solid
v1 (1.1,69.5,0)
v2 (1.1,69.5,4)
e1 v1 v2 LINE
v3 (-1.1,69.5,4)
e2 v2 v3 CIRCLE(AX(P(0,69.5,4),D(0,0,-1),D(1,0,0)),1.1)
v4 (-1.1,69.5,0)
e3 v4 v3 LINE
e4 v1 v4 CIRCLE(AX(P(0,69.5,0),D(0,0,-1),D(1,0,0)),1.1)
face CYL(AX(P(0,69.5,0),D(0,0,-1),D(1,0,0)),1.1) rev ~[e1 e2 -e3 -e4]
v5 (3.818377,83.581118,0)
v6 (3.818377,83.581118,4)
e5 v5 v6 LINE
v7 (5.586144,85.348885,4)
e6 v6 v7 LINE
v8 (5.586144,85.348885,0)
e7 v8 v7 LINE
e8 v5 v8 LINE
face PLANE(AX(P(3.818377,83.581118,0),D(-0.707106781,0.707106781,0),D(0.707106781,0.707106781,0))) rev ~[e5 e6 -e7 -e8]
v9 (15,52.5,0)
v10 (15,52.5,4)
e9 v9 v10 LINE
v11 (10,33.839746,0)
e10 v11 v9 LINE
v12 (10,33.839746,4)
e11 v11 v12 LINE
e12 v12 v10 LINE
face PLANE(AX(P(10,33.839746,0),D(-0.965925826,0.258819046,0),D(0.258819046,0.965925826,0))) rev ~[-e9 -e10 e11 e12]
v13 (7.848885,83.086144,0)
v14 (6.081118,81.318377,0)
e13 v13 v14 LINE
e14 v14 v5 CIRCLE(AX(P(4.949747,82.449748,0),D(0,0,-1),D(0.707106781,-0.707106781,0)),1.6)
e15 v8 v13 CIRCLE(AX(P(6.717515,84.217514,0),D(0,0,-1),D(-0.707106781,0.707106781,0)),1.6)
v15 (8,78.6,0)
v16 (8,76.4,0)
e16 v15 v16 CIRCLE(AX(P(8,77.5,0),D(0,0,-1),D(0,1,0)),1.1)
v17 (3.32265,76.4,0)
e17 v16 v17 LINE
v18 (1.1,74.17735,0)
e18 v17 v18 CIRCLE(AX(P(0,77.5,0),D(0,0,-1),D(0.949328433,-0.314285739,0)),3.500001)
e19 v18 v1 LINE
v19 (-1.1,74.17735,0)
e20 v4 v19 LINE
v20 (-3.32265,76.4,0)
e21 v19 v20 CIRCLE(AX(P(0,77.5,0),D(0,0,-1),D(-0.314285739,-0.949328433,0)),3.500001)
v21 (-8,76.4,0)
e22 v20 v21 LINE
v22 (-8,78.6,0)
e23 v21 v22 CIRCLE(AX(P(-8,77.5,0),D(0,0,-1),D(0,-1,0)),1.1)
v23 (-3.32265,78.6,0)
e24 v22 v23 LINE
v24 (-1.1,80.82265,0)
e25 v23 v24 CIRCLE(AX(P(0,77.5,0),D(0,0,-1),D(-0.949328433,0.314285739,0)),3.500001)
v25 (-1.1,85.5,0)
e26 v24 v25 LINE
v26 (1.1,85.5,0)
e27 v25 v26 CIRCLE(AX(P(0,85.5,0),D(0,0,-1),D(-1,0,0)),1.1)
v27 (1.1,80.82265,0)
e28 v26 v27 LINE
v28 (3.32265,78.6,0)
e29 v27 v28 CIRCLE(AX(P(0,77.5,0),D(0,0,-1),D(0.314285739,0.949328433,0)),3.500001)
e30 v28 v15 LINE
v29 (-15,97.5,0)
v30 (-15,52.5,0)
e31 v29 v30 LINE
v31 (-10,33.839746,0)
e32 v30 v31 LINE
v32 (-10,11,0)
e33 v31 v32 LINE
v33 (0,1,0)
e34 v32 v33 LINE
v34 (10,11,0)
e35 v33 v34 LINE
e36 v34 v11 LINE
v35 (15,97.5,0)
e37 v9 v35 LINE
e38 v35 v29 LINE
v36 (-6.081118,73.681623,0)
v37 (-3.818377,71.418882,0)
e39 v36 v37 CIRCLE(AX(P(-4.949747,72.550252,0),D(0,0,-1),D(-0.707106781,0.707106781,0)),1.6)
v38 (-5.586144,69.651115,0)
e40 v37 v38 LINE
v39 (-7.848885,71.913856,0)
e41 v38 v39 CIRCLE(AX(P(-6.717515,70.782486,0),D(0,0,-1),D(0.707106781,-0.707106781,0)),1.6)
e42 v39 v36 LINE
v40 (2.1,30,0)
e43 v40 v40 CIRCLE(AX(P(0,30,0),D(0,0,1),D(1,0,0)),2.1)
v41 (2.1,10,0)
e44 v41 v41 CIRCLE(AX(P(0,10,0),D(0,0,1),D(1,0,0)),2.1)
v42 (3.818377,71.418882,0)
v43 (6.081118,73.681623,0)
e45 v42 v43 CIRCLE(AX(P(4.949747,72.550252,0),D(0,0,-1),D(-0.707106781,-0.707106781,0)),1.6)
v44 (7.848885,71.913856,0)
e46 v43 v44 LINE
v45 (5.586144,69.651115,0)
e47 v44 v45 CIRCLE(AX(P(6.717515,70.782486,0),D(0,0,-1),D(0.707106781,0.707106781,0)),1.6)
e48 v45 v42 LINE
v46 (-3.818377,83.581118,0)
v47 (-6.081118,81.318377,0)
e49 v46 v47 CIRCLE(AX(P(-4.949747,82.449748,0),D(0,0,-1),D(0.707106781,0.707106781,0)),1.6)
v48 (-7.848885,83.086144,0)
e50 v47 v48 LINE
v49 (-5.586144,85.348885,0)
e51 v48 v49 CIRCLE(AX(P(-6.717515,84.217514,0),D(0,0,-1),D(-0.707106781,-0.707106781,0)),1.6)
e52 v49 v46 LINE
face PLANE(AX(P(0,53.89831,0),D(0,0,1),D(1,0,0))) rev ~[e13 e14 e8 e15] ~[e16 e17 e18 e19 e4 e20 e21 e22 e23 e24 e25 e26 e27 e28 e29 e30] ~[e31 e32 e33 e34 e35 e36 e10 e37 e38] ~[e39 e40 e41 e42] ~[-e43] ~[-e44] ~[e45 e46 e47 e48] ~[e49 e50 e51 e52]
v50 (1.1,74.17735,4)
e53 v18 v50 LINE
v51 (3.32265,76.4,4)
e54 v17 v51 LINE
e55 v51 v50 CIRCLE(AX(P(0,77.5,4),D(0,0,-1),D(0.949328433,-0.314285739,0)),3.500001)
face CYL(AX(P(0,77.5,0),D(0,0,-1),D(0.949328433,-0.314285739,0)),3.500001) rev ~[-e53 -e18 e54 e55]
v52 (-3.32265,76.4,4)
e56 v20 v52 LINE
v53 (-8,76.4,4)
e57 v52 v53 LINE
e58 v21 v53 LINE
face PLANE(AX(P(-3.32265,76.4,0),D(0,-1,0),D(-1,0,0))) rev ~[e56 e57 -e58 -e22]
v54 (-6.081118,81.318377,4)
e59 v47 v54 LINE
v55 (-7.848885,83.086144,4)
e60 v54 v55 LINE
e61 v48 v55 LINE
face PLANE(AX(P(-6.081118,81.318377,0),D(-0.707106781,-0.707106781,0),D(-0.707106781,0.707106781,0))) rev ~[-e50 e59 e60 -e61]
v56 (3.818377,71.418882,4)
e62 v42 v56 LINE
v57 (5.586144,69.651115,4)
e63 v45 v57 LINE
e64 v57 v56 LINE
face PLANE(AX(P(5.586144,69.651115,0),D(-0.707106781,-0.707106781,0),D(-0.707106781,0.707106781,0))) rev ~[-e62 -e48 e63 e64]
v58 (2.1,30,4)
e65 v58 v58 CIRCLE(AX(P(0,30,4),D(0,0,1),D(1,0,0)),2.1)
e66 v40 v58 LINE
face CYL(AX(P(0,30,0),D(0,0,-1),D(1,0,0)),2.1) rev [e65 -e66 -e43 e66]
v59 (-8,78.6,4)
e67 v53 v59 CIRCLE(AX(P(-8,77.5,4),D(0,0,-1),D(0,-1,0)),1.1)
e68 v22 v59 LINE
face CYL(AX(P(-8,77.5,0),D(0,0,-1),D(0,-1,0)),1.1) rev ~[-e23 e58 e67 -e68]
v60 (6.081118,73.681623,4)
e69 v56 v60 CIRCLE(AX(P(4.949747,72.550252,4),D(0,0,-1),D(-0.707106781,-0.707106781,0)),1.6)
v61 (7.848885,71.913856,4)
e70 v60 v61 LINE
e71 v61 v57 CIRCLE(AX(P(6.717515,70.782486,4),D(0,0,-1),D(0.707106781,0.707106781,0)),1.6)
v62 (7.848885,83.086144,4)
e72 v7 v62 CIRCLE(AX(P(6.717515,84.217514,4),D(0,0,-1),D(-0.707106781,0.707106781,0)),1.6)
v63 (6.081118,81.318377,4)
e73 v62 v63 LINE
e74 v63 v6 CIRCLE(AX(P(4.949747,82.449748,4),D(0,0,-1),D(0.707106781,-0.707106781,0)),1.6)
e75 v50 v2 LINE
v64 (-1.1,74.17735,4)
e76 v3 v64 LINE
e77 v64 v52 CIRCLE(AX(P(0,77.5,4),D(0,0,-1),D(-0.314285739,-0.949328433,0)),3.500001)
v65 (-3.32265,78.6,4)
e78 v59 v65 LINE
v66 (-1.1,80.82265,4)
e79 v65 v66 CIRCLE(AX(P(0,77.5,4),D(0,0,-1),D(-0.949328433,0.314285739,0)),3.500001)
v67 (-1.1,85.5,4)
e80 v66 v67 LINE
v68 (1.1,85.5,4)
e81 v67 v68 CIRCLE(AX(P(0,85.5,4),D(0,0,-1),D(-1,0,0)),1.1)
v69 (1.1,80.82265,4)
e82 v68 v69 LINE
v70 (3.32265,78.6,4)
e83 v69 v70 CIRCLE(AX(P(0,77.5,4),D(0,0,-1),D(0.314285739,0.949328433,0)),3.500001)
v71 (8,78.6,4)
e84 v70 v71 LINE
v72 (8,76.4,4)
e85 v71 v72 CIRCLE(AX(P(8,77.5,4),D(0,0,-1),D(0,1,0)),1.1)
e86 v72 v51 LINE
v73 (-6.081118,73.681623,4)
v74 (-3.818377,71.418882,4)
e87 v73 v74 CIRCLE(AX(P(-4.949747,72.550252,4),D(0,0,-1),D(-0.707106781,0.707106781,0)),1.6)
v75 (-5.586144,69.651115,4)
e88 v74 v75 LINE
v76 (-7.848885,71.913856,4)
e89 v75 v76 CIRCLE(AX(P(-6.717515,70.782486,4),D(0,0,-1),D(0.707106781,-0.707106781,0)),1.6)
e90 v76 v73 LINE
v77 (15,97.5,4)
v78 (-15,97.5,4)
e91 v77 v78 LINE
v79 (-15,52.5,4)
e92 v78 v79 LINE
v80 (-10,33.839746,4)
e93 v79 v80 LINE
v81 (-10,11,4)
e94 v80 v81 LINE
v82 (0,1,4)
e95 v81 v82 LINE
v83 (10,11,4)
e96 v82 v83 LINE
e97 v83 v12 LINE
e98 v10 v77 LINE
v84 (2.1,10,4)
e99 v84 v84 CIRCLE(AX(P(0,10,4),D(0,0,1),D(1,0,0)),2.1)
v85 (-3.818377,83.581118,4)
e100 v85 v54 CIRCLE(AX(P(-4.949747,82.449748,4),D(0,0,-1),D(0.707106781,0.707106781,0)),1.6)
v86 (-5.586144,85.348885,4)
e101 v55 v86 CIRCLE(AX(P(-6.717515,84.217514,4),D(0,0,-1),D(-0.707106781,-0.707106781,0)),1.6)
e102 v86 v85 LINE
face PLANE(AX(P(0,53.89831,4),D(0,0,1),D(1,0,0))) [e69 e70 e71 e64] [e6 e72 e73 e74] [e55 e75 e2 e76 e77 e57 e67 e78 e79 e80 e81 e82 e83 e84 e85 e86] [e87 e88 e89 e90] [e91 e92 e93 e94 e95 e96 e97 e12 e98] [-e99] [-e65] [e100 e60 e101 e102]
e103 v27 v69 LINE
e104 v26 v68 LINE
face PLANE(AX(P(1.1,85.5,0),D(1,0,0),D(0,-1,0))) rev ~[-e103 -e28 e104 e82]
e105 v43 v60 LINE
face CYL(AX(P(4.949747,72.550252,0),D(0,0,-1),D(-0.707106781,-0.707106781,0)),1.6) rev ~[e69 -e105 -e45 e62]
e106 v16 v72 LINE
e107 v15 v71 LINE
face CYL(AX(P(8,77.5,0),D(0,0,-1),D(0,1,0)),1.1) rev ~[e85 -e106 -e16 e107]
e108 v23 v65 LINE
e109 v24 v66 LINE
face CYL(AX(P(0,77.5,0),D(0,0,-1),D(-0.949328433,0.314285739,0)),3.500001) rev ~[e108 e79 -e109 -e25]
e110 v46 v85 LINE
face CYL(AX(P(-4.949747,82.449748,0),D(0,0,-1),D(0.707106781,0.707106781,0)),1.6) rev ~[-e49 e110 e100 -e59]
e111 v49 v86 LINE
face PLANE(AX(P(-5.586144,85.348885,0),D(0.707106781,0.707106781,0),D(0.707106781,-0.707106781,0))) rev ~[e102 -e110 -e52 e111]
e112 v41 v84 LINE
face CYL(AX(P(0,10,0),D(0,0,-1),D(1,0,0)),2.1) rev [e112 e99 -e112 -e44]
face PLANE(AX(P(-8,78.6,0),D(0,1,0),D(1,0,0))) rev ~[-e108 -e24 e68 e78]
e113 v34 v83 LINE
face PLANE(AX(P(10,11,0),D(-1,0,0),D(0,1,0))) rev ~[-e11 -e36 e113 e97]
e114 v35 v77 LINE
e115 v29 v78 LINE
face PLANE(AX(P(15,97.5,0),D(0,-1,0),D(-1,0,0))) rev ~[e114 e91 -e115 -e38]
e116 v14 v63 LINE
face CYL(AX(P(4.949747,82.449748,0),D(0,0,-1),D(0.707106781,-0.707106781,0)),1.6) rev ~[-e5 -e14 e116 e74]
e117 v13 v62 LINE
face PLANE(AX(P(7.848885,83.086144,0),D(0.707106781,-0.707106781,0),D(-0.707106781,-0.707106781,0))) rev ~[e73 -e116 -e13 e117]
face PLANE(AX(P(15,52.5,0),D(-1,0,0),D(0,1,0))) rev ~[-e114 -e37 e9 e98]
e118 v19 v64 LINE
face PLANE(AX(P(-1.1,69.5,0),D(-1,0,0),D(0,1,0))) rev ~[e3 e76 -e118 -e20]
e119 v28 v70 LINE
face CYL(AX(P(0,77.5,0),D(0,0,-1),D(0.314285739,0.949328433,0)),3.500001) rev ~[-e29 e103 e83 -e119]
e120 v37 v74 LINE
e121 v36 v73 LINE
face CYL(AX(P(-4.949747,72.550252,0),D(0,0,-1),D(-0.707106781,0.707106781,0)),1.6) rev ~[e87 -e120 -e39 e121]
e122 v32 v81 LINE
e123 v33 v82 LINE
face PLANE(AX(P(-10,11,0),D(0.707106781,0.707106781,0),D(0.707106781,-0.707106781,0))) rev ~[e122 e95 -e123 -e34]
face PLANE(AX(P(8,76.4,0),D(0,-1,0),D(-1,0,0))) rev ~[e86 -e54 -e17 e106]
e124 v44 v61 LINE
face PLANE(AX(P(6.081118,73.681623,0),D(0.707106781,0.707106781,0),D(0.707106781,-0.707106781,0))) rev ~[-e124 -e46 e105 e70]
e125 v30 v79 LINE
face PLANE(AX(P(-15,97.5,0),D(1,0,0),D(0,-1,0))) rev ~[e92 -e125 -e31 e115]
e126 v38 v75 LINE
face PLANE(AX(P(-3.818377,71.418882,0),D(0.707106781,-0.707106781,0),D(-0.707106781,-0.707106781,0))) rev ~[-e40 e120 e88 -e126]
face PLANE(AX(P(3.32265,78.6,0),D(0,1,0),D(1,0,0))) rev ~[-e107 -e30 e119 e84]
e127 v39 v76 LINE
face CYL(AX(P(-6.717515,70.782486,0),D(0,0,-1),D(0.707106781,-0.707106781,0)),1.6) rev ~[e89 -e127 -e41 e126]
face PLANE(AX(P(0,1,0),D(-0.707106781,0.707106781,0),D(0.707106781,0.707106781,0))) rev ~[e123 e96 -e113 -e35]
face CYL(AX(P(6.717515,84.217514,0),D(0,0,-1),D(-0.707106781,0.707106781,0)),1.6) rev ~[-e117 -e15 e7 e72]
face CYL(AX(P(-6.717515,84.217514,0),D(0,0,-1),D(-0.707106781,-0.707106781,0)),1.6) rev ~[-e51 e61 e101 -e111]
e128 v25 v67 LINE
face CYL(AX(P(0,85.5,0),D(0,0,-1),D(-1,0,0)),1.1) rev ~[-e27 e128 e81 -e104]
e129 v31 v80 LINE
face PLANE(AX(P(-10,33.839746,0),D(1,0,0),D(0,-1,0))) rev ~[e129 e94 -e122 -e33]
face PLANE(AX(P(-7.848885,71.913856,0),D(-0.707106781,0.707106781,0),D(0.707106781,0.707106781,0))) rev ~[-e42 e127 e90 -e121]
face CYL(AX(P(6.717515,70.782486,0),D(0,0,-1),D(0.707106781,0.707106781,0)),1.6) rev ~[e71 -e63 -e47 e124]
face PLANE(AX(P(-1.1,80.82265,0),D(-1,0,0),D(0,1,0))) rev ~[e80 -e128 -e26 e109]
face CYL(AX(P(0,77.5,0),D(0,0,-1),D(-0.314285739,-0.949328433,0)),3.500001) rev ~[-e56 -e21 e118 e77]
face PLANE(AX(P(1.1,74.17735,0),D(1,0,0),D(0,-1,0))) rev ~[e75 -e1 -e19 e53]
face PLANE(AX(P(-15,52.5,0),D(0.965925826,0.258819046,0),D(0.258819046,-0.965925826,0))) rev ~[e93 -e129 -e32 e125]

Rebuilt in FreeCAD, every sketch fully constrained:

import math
import FreeCAD as App
import Part
import Sketcher

V = App.Vector
Q = App.Units.Quantity


def add_polygon(sketch, points):
    """Adds a closed chain of lines whose ends are joined by coincident constraints."""
    first, n = sketch.GeometryCount, len(points)
    for a, b in zip(points, points[1:] + points[:1]):
        sketch.addGeometry(Part.LineSegment(App.Vector(*a, 0), App.Vector(*b, 0)), False)
    for i in range(n):
        sketch.addConstraint(Sketcher.Constraint("Coincident", first + i, 2, first + (i + 1) % n, 1))

doc = App.newDocument("Part")
body = doc.addObject("PartDesign::Body", "Body")

sketch1 = body.newObject("Sketcher::SketchObject", "Sketch")
sketch1.AttachmentSupport = (doc.getObject("XY_Plane"), [""])
sketch1.MapMode = "FlatFace"
add_polygon(sketch1, [(-15, 52.5), (-10, 33.8), (-10, 11), (0, 1), (10, 11), (10, 33.8), (15, 52.5), (15, 97.5), (-15, 97.5)])
sketch1.addGeometry(Part.Circle(V(0, 10, 0), V(0, 0, 1), 2.1), False)
sketch1.addGeometry(Part.Circle(V(0, 30, 0), V(0, 0, 1), 2.1), False)
sketch1.addGeometry(Part.LineSegment(V(-3.8, 71.4, 0), V(-5.6, 69.7, 0)), False)
sketch1.addGeometry(Part.ArcOfCircle(Part.Circle(V(-6.7, 70.8, 0), V(0, 0, 1), 1.6), math.radians(135), math.radians(315)), False)
sketch1.addGeometry(Part.LineSegment(V(-7.8, 71.9, 0), V(-6.1, 73.7, 0)), False)
sketch1.addGeometry(Part.ArcOfCircle(Part.Circle(V(-4.9, 72.6, 0), V(0, 0, 1), 1.6), math.radians(-45), math.radians(135)), False)
sketch1.addGeometry(Part.LineSegment(V(-6.1, 81.3, 0), V(-7.8, 83.1, 0)), False)
sketch1.addGeometry(Part.ArcOfCircle(Part.Circle(V(-6.7, 84.2, 0), V(0, 0, 1), 1.6), math.radians(45), math.radians(225)), False)
sketch1.addGeometry(Part.LineSegment(V(-5.6, 85.3, 0), V(-3.8, 83.6, 0)), False)
sketch1.addGeometry(Part.ArcOfCircle(Part.Circle(V(-4.9, 82.4, 0), V(0, 0, 1), 1.6), math.radians(-135), math.radians(45)), False)
sketch1.addGeometry(Part.LineSegment(V(-8, 78.6, 0), V(-3.3, 78.6, 0)), False)
sketch1.addGeometry(Part.ArcOfCircle(Part.Circle(V(0, 77.5, 0), V(0, 0, 1), 3.5), math.radians(108), math.radians(162)), False)
sketch1.addGeometry(Part.LineSegment(V(-1.1, 80.8, 0), V(-1.1, 85.5, 0)), False)
sketch1.addGeometry(Part.ArcOfCircle(Part.Circle(V(0, 85.5, 0), V(0, 0, 1), 1.1), math.radians(0), math.radians(180)), False)
sketch1.addGeometry(Part.LineSegment(V(1.1, 85.5, 0), V(1.1, 80.8, 0)), False)
sketch1.addGeometry(Part.ArcOfCircle(Part.Circle(V(0, 77.5, 0), V(0, 0, 1), 3.5), math.radians(18), math.radians(72)), False)
sketch1.addGeometry(Part.LineSegment(V(3.3, 78.6, 0), V(8, 78.6, 0)), False)
sketch1.addGeometry(Part.ArcOfCircle(Part.Circle(V(8, 77.5, 0), V(0, 0, 1), 1.1), math.radians(-90), math.radians(90)), False)
sketch1.addGeometry(Part.LineSegment(V(8, 76.4, 0), V(3.3, 76.4, 0)), False)
sketch1.addGeometry(Part.ArcOfCircle(Part.Circle(V(0, 77.5, 0), V(0, 0, 1), 3.5), math.radians(-72), math.radians(-18)), False)
sketch1.addGeometry(Part.LineSegment(V(1.1, 74.2, 0), V(1.1, 69.5, 0)), False)
sketch1.addGeometry(Part.ArcOfCircle(Part.Circle(V(0, 69.5, 0), V(0, 0, 1), 1.1), math.radians(180), math.radians(360)), False)
sketch1.addGeometry(Part.LineSegment(V(-1.1, 69.5, 0), V(-1.1, 74.2, 0)), False)
sketch1.addGeometry(Part.ArcOfCircle(Part.Circle(V(0, 77.5, 0), V(0, 0, 1), 3.5), math.radians(-162), math.radians(-108)), False)
sketch1.addGeometry(Part.LineSegment(V(-3.3, 76.4, 0), V(-8, 76.4, 0)), False)
sketch1.addGeometry(Part.ArcOfCircle(Part.Circle(V(-8, 77.5, 0), V(0, 0, 1), 1.1), math.radians(90), math.radians(270)), False)
sketch1.addGeometry(Part.LineSegment(V(6.1, 73.7, 0), V(7.8, 71.9, 0)), False)
sketch1.addGeometry(Part.ArcOfCircle(Part.Circle(V(6.7, 70.8, 0), V(0, 0, 1), 1.6), math.radians(-135), math.radians(45)), False)
sketch1.addGeometry(Part.LineSegment(V(5.6, 69.7, 0), V(3.8, 71.4, 0)), False)
sketch1.addGeometry(Part.ArcOfCircle(Part.Circle(V(4.9, 72.6, 0), V(0, 0, 1), 1.6), math.radians(45), math.radians(225)), False)
sketch1.addGeometry(Part.LineSegment(V(3.8, 83.6, 0), V(5.6, 85.3, 0)), False)
sketch1.addGeometry(Part.ArcOfCircle(Part.Circle(V(6.7, 84.2, 0), V(0, 0, 1), 1.6), math.radians(-45), math.radians(135)), False)
sketch1.addGeometry(Part.LineSegment(V(7.8, 83.1, 0), V(6.1, 81.3, 0)), False)
sketch1.addGeometry(Part.ArcOfCircle(Part.Circle(V(4.9, 82.4, 0), V(0, 0, 1), 1.6), math.radians(135), math.radians(315)), False)
sketch1.addConstraint([
    Sketcher.Constraint("Tangent", 11, 2, 12, 2),
    Sketcher.Constraint("Tangent", 12, 1, 13, 1),
    Sketcher.Constraint("Tangent", 13, 2, 14, 2),
    Sketcher.Constraint("Tangent", 14, 1, 11, 1),
    Sketcher.Constraint("Tangent", 15, 2, 16, 2),
    Sketcher.Constraint("Tangent", 16, 1, 17, 1),
    Sketcher.Constraint("Tangent", 17, 2, 18, 2),
    Sketcher.Constraint("Tangent", 18, 1, 15, 1),
    Sketcher.Constraint("Coincident", 19, 2, 20, 2),
    Sketcher.Constraint("Coincident", 20, 1, 21, 1),
    Sketcher.Constraint("Tangent", 21, 2, 22, 2),
    Sketcher.Constraint("Tangent", 22, 1, 23, 1),
    Sketcher.Constraint("Coincident", 23, 2, 24, 2),
    Sketcher.Constraint("Coincident", 24, 1, 25, 1),
    Sketcher.Constraint("Tangent", 25, 2, 26, 2),
    Sketcher.Constraint("Tangent", 26, 1, 27, 1),
    Sketcher.Constraint("Coincident", 27, 2, 28, 2),
    Sketcher.Constraint("Coincident", 28, 1, 29, 1),
    Sketcher.Constraint("Tangent", 29, 2, 30, 2),
    Sketcher.Constraint("Tangent", 30, 1, 31, 1),
    Sketcher.Constraint("Coincident", 31, 2, 32, 2),
    Sketcher.Constraint("Coincident", 32, 1, 33, 1),
    Sketcher.Constraint("Tangent", 33, 2, 34, 2),
    Sketcher.Constraint("Tangent", 34, 1, 19, 1),
    Sketcher.Constraint("Tangent", 35, 2, 36, 2),
    Sketcher.Constraint("Tangent", 36, 1, 37, 1),
    Sketcher.Constraint("Tangent", 37, 2, 38, 2),
    Sketcher.Constraint("Tangent", 38, 1, 35, 1),
    Sketcher.Constraint("Tangent", 39, 2, 40, 2),
    Sketcher.Constraint("Tangent", 40, 1, 41, 1),
    Sketcher.Constraint("Tangent", 41, 2, 42, 2),
    Sketcher.Constraint("Tangent", 42, 1, 39, 1),
    Sketcher.Constraint("Vertical", 1),
    Sketcher.Constraint("Vertical", 4),
    Sketcher.Constraint("Vertical", 6),
    Sketcher.Constraint("Horizontal", 7),
    Sketcher.Constraint("Vertical", 8),
    Sketcher.Constraint("Horizontal", 19),
    Sketcher.Constraint("Vertical", 21),
    Sketcher.Constraint("Vertical", 23),
    Sketcher.Constraint("Horizontal", 25),
    Sketcher.Constraint("Horizontal", 27),
    Sketcher.Constraint("Vertical", 29),
    Sketcher.Constraint("Vertical", 31),
    Sketcher.Constraint("Horizontal", 33),
    Sketcher.Constraint("Coincident", 24, 3, 20, 3),
    Sketcher.Constraint("Coincident", 28, 3, 20, 3),
    Sketcher.Constraint("Coincident", 32, 3, 20, 3),
    Sketcher.Constraint("Equal", 9, 10),
    Sketcher.Constraint("Equal", 12, 14),
    Sketcher.Constraint("Equal", 14, 16),
    Sketcher.Constraint("Equal", 16, 18),
    Sketcher.Constraint("Equal", 20, 24),
    Sketcher.Constraint("Equal", 22, 26),
    Sketcher.Constraint("Equal", 24, 28),
    Sketcher.Constraint("Equal", 26, 30),
    Sketcher.Constraint("Equal", 28, 32),
    Sketcher.Constraint("Equal", 30, 34),
    Sketcher.Constraint("Equal", 18, 36),
    Sketcher.Constraint("Equal", 36, 38),
    Sketcher.Constraint("Equal", 38, 40),
    Sketcher.Constraint("Equal", 40, 42),
    Sketcher.Constraint("Symmetric", 26, 3, 34, 3, -2),
    Sketcher.Constraint("Symmetric", 12, 3, 36, 3, -2),
    Sketcher.Constraint("Symmetric", 14, 3, 38, 3, -2),
    Sketcher.Constraint("Symmetric", 16, 3, 40, 3, -2),
    Sketcher.Constraint("Symmetric", 18, 3, 42, 3, -2),
    Sketcher.Constraint("Symmetric", 1, 2, 3, 2, -2),
    Sketcher.Constraint("Symmetric", 5, 2, 8, 2, -2),
    Sketcher.Constraint("Symmetric", 20, 1, 23, 2, -2),
    Sketcher.Constraint("PointOnObject", 9, 3, -2),
    Sketcher.Constraint("PointOnObject", 10, 3, -2),
    Sketcher.Constraint("PointOnObject", 30, 3, -2),
    Sketcher.Constraint("PointOnObject", 2, 2, -2),
    Sketcher.Constraint("Perpendicular", 2, 3),
    Sketcher.Constraint("Parallel", 3, 11),
    Sketcher.Constraint("Perpendicular", 13, 15),
    Sketcher.Constraint("Horizontal", 24, 3, 26, 3),
    Sketcher.Constraint("Horizontal", 0, 2, 4, 2),
    Sketcher.Constraint("Vertical", 12, 3, 16, 3),
    Sketcher.Constraint("Vertical", 14, 3, 18, 3),
    Sketcher.Constraint("Equal", 33, 21),
    Sketcher.Constraint("Equal", 23, 29),
    Sketcher.Constraint("Diameter", 9, Q("4.2 mm")),
    Sketcher.Constraint("Radius", 12, Q("1.6 mm")),
    Sketcher.Constraint("Radius", 20, Q("3.500001 mm")),
    Sketcher.Constraint("Radius", 22, Q("1.1 mm")),
    Sketcher.Constraint("DistanceX", 7, 2, 7, 1, Q("30 mm")),
    Sketcher.Constraint("DistanceY", 6, 1, 6, 2, Q("45 mm")),
    Sketcher.Constraint("Angle", 0, Q("-75 deg")),
    Sketcher.Constraint("DistanceY", -1, 1, 9, 3, Q("10 mm")),
    Sketcher.Constraint("DistanceY", -1, 1, 10, 3, Q("30 mm")),
    Sketcher.Constraint("DistanceX", -1, 1, 26, 3, Q("8 mm")),
    Sketcher.Constraint("DistanceX", 0, 2, -1, 1, Q("10 mm")),
    Sketcher.Constraint("DistanceY", -1, 1, 1, 2, Q("11 mm")),
    Sketcher.Constraint("DistanceY", 5, 2, 30, 3, Q("17 mm")),
    Sketcher.Constraint("Distance", 11, Q("2.5 mm")),
    Sketcher.Constraint("DistanceY", -1, 1, 20, 3, Q("77.5 mm")),
    Sketcher.Constraint("DistanceY", -1, 1, 17, 2, Q("83.581118 mm")),
    Sketcher.Constraint("DistanceY", -1, 1, 37, 2, Q("71.418882 mm")),
    Sketcher.Constraint("DistanceX", 24, 1, 41, 2, Q("2.758468 mm")),
])
pad1 = body.newObject("PartDesign::Pad", "Pad")
pad1.Profile = sketch1
pad1.Length = 4

doc.recompute()
